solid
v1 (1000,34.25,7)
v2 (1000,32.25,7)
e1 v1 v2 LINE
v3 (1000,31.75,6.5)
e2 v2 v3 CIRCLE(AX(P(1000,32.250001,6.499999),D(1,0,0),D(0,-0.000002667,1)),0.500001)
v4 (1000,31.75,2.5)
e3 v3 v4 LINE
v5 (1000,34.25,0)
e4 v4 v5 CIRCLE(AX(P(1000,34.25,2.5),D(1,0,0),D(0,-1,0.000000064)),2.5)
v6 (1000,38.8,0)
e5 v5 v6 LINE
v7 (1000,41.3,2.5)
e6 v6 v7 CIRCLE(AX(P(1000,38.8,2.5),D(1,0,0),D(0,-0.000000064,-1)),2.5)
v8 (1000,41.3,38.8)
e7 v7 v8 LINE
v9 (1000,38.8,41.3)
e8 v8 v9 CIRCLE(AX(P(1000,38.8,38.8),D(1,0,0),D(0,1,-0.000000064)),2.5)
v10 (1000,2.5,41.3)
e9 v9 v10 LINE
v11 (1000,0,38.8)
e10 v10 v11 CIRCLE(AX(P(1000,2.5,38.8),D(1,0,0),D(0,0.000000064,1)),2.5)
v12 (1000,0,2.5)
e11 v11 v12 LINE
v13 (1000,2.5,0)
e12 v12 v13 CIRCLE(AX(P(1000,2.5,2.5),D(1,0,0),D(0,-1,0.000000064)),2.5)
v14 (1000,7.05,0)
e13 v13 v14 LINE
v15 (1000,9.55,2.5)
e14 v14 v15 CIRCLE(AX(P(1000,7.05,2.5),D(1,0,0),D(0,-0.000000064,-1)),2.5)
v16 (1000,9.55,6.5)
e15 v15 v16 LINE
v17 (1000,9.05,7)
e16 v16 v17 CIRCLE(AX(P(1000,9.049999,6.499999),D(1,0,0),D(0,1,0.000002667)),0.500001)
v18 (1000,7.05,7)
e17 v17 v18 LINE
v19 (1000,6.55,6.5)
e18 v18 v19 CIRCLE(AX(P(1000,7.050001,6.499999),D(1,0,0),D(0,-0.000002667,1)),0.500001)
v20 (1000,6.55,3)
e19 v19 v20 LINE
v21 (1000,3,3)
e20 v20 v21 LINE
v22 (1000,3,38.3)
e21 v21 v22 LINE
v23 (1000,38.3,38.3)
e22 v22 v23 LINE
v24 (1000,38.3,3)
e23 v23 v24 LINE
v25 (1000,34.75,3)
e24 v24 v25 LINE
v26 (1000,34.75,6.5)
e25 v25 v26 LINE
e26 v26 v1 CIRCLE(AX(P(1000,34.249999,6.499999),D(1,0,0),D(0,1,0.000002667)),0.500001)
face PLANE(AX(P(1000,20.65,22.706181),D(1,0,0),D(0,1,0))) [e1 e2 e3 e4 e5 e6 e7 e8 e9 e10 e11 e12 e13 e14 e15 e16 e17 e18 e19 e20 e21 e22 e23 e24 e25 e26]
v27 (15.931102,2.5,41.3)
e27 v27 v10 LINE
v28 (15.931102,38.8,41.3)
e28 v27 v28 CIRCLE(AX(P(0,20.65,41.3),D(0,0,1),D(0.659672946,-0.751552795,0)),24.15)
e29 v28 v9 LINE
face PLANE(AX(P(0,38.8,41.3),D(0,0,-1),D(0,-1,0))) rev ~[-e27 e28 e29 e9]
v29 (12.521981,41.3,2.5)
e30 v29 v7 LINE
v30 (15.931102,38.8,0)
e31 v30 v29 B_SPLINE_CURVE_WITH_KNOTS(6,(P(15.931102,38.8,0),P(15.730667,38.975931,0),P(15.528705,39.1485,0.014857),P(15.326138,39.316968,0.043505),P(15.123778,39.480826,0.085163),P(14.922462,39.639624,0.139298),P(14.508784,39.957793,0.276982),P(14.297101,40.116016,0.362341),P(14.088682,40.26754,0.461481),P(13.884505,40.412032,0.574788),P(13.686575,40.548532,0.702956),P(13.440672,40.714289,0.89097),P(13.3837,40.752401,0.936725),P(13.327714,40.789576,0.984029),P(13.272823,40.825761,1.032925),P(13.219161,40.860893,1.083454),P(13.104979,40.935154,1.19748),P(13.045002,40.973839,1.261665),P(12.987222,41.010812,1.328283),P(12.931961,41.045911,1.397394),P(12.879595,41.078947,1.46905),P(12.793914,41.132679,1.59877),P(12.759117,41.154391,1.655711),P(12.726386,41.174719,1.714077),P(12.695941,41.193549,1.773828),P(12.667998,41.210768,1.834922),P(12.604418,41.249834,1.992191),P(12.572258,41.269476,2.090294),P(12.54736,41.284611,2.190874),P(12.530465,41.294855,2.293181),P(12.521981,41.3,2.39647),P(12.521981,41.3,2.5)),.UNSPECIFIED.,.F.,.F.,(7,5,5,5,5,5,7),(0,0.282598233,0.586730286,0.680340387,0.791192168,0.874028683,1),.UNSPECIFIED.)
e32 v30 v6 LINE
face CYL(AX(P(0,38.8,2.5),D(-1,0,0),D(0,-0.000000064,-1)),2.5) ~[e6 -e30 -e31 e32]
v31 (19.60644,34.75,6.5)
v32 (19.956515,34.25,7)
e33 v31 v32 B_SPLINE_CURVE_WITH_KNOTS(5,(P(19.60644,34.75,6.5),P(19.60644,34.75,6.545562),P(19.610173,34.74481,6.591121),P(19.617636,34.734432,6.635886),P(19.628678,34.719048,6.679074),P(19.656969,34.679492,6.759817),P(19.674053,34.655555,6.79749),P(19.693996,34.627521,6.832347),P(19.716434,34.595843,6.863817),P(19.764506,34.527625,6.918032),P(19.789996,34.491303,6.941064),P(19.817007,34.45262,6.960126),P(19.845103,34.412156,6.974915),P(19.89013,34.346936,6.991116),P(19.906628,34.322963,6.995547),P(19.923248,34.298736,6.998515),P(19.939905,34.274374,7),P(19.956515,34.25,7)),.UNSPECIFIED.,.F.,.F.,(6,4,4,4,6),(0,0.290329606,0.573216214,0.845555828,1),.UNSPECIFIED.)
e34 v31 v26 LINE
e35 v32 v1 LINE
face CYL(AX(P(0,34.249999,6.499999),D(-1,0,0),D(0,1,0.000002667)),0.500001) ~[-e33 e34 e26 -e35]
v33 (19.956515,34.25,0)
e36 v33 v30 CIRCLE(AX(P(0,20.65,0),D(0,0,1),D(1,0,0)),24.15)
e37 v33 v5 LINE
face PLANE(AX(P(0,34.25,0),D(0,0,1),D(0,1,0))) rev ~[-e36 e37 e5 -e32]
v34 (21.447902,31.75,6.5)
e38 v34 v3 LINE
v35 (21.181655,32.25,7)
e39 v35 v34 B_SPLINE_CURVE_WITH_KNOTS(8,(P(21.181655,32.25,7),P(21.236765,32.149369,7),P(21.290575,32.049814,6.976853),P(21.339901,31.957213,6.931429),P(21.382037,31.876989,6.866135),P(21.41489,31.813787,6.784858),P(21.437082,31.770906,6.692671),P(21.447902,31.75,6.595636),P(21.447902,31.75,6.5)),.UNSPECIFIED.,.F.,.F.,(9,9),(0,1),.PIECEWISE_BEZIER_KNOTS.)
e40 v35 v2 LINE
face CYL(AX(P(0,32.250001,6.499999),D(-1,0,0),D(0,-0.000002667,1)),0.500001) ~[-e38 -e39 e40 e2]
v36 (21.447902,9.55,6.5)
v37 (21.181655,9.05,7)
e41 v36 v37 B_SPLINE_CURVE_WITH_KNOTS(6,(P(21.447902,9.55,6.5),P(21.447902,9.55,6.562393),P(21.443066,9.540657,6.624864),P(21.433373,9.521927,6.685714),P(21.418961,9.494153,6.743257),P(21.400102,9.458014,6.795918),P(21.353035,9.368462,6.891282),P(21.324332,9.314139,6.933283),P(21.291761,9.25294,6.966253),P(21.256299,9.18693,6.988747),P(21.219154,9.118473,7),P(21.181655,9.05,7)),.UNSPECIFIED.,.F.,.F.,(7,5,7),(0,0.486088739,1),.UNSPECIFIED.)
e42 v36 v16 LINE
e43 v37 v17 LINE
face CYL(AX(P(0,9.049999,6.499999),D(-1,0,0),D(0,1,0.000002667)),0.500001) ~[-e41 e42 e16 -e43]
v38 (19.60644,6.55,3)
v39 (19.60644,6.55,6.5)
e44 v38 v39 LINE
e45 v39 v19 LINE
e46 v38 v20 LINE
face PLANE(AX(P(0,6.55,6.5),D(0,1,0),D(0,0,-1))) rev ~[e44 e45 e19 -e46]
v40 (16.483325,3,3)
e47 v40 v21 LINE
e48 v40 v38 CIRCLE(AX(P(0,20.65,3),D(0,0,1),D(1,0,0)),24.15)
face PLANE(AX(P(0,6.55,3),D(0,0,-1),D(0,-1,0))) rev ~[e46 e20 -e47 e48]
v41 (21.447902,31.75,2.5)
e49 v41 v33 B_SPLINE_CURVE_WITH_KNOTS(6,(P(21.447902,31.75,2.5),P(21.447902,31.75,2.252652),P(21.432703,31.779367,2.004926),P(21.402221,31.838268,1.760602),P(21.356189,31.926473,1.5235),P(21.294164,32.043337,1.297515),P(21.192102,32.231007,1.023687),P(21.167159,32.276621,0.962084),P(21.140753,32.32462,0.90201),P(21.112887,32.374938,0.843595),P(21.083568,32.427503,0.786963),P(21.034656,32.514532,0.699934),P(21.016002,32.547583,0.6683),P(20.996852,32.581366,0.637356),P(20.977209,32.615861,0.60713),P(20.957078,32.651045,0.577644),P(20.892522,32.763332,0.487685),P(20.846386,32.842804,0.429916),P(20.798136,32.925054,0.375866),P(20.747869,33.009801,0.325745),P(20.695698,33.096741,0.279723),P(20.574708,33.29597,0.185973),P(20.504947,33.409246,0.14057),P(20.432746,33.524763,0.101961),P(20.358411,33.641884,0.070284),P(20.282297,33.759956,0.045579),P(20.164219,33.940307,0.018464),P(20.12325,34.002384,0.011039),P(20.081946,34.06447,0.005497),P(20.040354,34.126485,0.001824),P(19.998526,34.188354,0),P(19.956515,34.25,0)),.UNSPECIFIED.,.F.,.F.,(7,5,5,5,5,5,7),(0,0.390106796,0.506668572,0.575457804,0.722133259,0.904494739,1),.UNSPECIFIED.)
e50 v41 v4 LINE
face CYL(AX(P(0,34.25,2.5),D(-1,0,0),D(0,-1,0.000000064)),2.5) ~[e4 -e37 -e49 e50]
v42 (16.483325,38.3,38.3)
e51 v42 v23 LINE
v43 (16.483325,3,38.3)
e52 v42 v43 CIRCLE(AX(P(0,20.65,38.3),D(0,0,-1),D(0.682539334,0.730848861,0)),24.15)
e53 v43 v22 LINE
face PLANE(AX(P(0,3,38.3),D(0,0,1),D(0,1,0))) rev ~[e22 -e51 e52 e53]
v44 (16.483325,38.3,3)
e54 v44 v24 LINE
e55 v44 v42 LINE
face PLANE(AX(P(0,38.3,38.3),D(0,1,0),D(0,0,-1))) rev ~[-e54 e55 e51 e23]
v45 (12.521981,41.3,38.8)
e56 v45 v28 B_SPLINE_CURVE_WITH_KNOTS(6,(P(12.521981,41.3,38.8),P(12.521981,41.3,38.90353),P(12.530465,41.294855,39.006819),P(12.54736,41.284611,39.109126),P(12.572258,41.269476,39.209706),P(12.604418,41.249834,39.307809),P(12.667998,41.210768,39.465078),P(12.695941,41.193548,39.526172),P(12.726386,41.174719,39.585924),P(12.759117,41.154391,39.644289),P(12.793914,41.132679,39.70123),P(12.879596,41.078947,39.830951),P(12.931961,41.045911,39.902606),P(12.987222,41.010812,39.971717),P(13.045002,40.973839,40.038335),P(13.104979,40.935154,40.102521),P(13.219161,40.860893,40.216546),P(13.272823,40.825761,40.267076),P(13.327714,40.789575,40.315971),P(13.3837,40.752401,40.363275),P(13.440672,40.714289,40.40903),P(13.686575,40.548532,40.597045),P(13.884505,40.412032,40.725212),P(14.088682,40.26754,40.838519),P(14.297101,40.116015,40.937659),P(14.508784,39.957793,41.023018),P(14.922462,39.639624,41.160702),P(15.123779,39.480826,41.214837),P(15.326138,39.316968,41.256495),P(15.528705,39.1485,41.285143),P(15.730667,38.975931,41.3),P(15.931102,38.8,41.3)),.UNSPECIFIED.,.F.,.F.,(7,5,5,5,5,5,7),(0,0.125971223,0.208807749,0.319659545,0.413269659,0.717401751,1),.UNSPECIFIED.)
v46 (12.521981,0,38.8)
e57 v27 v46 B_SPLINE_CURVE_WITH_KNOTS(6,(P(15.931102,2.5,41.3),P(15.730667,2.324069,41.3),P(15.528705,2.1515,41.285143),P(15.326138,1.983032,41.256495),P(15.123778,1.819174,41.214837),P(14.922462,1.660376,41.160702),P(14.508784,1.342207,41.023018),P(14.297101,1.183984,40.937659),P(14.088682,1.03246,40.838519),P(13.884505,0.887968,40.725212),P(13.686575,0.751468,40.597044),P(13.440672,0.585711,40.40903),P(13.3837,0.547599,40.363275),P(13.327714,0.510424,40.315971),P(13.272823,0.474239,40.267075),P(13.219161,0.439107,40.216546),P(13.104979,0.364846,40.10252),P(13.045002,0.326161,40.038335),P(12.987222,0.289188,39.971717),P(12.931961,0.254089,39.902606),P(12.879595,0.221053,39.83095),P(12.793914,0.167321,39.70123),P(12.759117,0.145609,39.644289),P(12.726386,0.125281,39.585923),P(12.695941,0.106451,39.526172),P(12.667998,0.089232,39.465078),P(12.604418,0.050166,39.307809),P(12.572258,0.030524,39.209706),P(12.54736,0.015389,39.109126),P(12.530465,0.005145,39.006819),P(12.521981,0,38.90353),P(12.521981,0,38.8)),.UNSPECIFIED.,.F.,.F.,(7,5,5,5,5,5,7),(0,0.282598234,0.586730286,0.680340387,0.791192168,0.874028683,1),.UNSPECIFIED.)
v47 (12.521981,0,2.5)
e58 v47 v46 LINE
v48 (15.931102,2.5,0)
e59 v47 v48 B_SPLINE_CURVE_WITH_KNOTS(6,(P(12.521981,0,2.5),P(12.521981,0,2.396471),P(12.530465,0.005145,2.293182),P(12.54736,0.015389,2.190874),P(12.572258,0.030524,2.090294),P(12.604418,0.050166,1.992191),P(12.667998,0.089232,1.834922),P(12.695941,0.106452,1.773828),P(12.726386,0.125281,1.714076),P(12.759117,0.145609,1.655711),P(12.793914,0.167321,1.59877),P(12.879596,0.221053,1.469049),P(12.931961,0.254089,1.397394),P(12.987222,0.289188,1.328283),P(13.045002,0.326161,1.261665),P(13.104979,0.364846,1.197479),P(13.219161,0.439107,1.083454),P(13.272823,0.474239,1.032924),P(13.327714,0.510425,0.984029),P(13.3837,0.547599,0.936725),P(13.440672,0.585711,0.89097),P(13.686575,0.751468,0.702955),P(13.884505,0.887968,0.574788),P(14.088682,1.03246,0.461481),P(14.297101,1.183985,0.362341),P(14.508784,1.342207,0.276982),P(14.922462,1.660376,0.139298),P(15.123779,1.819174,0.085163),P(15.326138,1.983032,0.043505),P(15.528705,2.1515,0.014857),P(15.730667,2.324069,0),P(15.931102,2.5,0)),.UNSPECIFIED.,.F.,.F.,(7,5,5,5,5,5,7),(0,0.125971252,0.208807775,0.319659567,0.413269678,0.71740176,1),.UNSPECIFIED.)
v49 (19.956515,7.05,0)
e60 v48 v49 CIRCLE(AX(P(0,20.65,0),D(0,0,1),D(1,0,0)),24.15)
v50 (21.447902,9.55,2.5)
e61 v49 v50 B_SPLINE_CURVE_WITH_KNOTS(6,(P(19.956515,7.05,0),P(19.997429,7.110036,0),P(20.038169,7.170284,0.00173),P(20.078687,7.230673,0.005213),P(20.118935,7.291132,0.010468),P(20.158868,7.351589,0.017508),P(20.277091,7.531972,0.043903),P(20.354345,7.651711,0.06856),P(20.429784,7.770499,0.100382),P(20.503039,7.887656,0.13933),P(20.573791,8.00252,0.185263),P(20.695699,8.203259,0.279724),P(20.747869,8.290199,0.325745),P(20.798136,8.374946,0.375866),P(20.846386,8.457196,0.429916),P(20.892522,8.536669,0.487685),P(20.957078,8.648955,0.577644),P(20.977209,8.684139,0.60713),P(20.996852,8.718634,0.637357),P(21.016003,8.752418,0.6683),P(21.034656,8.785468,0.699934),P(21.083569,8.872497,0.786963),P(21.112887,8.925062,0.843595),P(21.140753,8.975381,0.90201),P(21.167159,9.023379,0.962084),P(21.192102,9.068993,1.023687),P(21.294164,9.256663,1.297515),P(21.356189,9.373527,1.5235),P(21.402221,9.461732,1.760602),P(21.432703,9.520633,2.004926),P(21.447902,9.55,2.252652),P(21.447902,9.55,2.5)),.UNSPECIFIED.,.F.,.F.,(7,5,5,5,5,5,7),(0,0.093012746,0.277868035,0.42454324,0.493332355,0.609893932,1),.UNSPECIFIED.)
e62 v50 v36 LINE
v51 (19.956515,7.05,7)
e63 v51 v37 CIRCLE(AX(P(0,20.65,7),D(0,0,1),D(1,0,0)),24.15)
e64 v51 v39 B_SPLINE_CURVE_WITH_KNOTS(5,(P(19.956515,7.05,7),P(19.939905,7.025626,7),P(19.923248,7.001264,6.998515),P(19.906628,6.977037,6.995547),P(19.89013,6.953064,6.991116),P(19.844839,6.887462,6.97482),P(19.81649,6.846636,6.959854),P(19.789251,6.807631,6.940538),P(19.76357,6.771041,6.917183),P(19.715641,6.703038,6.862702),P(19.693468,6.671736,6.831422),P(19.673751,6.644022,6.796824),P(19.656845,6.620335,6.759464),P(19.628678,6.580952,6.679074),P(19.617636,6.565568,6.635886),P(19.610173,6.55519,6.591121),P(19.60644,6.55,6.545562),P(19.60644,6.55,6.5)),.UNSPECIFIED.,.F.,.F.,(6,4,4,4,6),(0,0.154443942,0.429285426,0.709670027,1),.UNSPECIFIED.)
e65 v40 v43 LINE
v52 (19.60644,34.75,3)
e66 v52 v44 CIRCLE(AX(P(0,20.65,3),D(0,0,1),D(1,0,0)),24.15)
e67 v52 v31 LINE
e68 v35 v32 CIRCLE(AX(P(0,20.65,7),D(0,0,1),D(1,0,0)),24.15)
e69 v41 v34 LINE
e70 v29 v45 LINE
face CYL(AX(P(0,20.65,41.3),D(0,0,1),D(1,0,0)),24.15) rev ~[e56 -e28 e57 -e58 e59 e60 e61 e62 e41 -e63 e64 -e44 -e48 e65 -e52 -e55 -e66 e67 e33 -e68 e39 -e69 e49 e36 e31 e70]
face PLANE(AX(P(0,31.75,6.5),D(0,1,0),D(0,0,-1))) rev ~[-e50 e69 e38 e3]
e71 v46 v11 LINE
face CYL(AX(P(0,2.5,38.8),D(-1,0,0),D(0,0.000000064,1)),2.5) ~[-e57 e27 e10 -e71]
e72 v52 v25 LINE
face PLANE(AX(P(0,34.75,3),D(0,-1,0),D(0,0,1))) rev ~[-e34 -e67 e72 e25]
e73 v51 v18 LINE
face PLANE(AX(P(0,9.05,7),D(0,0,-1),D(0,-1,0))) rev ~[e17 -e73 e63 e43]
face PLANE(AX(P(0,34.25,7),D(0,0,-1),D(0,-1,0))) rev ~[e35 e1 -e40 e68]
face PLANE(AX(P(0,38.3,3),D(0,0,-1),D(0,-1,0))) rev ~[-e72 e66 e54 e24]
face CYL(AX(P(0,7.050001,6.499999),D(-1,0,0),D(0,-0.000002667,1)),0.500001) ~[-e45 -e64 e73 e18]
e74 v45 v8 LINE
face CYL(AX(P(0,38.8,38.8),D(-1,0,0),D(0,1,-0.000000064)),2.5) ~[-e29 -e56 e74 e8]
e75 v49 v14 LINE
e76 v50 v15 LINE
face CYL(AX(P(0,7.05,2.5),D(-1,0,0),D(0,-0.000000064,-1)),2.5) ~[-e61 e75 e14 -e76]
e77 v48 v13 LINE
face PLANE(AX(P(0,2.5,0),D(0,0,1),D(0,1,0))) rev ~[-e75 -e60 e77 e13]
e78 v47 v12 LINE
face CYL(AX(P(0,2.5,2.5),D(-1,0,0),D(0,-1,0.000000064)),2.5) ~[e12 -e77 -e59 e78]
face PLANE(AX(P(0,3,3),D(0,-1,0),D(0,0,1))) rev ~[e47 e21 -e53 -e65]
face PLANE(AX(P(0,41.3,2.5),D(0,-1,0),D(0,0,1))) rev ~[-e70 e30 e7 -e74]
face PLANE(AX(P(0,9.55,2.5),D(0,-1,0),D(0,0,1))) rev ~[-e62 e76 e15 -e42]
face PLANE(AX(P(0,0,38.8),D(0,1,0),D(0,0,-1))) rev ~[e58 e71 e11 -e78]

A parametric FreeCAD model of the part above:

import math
import FreeCAD as App
import Part
import Sketcher

V = App.Vector
Q = App.Units.Quantity

doc = App.newDocument("Part")
body = doc.addObject("PartDesign::Body", "Body")

sketch1 = doc.addObject("Sketcher::SketchObject", "Sketch")
body.addObject(sketch1)
sketch1.AttachmentSupport = (doc.YZ_Plane, [""])
sketch1.MapMode = "FlatFace"
sketch1.addGeometry([
    Part.LineSegment(V(0, 38.8, 0), V(0, 2.5, 0)),
    Part.ArcOfCircle(Part.Circle(V(2.5, 2.5, 0), V(0, 0, 1), 2.5), math.radians(180), math.radians(270)),
    Part.LineSegment(V(2.5, 0, 0), V(7, 0, 0)),
    Part.ArcOfCircle(Part.Circle(V(7.1, 2.5, 0), V(0, 0, 1), 2.5), math.radians(-90), math.radians(0)),
    Part.LineSegment(V(9.6, 2.5, 0), V(9.6, 6.5, 0)),
    Part.ArcOfCircle(Part.Circle(V(9, 6.5, 0), V(0, 0, 1), 0.5), math.radians(0), math.radians(90)),
    Part.LineSegment(V(9.1, 7, 0), V(7, 7, 0)),
    Part.ArcOfCircle(Part.Circle(V(7.1, 6.5, 0), V(0, 0, 1), 0.5), math.radians(90), math.radians(180)),
    Part.LineSegment(V(6.5, 6.5, 0), V(6.5, 3, 0)),
    Part.LineSegment(V(6.5, 3, 0), V(3, 3, 0)),
    Part.LineSegment(V(3, 3, 0), V(3, 38.3, 0)),
    Part.LineSegment(V(3, 38.3, 0), V(38.3, 38.3, 0)),
    Part.LineSegment(V(38.3, 38.3, 0), V(38.3, 3, 0)),
    Part.LineSegment(V(38.3, 3, 0), V(34.8, 3, 0)),
    Part.LineSegment(V(34.8, 3, 0), V(34.8, 6.5, 0)),
    Part.ArcOfCircle(Part.Circle(V(34.2, 6.5, 0), V(0, 0, 1), 0.5), math.radians(0), math.radians(90)),
    Part.LineSegment(V(34.2, 7, 0), V(32.2, 7, 0)),
    Part.ArcOfCircle(Part.Circle(V(32.3, 6.5, 0), V(0, 0, 1), 0.5), math.radians(90), math.radians(180)),
    Part.LineSegment(V(31.8, 6.5, 0), V(31.8, 2.5, 0)),
    Part.ArcOfCircle(Part.Circle(V(34.2, 2.5, 0), V(0, 0, 1), 2.5), math.radians(180), math.radians(270)),
    Part.LineSegment(V(34.2, 0, 0), V(38.8, 0, 0)),
    Part.ArcOfCircle(Part.Circle(V(38.8, 2.5, 0), V(0, 0, 1), 2.5), math.radians(-90), math.radians(0)),
    Part.LineSegment(V(41.3, 2.5, 0), V(41.3, 38.8, 0)),
    Part.ArcOfCircle(Part.Circle(V(38.8, 38.8, 0), V(0, 0, 1), 2.5), math.radians(0), math.radians(90)),
    Part.LineSegment(V(38.8, 41.3, 0), V(2.5, 41.3, 0)),
    Part.ArcOfCircle(Part.Circle(V(2.5, 38.8, 0), V(0, 0, 1), 2.5), math.radians(90), math.radians(180)),
], False)
sketch1.addConstraint([
    Sketcher.Constraint("Tangent", 0, 2, 1, 1),
    Sketcher.Constraint("Tangent", 1, 2, 2, 1),
    Sketcher.Constraint("Tangent", 2, 2, 3, 1),
    Sketcher.Constraint("Tangent", 3, 2, 4, 1),
    Sketcher.Constraint("Coincident", 4, 2, 5, 1),
    Sketcher.Constraint("Coincident", 5, 2, 6, 1),
    Sketcher.Constraint("Coincident", 6, 2, 7, 1),
    Sketcher.Constraint("Coincident", 7, 2, 8, 1),
    Sketcher.Constraint("Coincident", 8, 2, 9, 1),
    Sketcher.Constraint("Coincident", 9, 2, 10, 1),
    Sketcher.Constraint("Coincident", 10, 2, 11, 1),
    Sketcher.Constraint("Coincident", 11, 2, 12, 1),
    Sketcher.Constraint("Coincident", 12, 2, 13, 1),
    Sketcher.Constraint("Coincident", 13, 2, 14, 1),
    Sketcher.Constraint("Coincident", 14, 2, 15, 1),
    Sketcher.Constraint("Coincident", 15, 2, 16, 1),
    Sketcher.Constraint("Coincident", 16, 2, 17, 1),
    Sketcher.Constraint("Coincident", 17, 2, 18, 1),
    Sketcher.Constraint("Tangent", 18, 2, 19, 1),
    Sketcher.Constraint("Tangent", 19, 2, 20, 1),
    Sketcher.Constraint("Tangent", 20, 2, 21, 1),
    Sketcher.Constraint("Tangent", 21, 2, 22, 1),
    Sketcher.Constraint("Tangent", 22, 2, 23, 1),
    Sketcher.Constraint("Tangent", 23, 2, 24, 1),
    Sketcher.Constraint("Tangent", 24, 2, 25, 1),
    Sketcher.Constraint("Tangent", 25, 2, 0, 1),
    Sketcher.Constraint("Vertical", 0),
    Sketcher.Constraint("Horizontal", 2),
    Sketcher.Constraint("Vertical", 4),
    Sketcher.Constraint("Horizontal", 6),
    Sketcher.Constraint("Vertical", 8),
    Sketcher.Constraint("Horizontal", 9),
    Sketcher.Constraint("Vertical", 10),
    Sketcher.Constraint("Horizontal", 11),
    Sketcher.Constraint("Vertical", 12),
    Sketcher.Constraint("Horizontal", 13),
    Sketcher.Constraint("Vertical", 14),
    Sketcher.Constraint("Horizontal", 16),
    Sketcher.Constraint("Vertical", 18),
    Sketcher.Constraint("Horizontal", 20),
    Sketcher.Constraint("Vertical", 22),
    Sketcher.Constraint("Horizontal", 24),
    Sketcher.Constraint("Equal", 1, 3),
    Sketcher.Constraint("Equal", 5, 7),
    Sketcher.Constraint("Equal", 7, 15),
    Sketcher.Constraint("Equal", 15, 17),
    Sketcher.Constraint("Equal", 3, 19),
    Sketcher.Constraint("Equal", 19, 21),
    Sketcher.Constraint("Equal", 21, 23),
    Sketcher.Constraint("Equal", 23, 25),
    Sketcher.Constraint("PointOnObject", 0, 2, -2),
    Sketcher.Constraint("PointOnObject", 1, 2, -1),
    Sketcher.Constraint("PointOnObject", 19, 2, -1),
    Sketcher.Constraint("Horizontal", 7, 3, 15, 3),
    Sketcher.Constraint("Horizontal", 17, 3, 4, 2),
    Sketcher.Constraint("Horizontal", 4, 2, 7, 2),
    Sketcher.Constraint("Horizontal", 9, 2, 12, 2),
    Sketcher.Constraint("Horizontal", 7, 2, 14, 2),
    Sketcher.Constraint("Horizontal", 14, 2, 17, 2),
    Sketcher.Constraint("Vertical", 3, 3, 7, 3),
    Sketcher.Constraint("Vertical", 15, 3, 19, 3),
    Sketcher.Constraint("Vertical", 2, 2, 6, 2),
    Sketcher.Constraint("Vertical", 19, 3, 15, 2),
    Sketcher.Constraint("Vertical", 17, 3, 16, 2),
    Sketcher.Constraint("Equal", 9, 13),
    Sketcher.Constraint("Equal", 6, 16),
    Sketcher.Constraint("Equal", 2, 20),
    Sketcher.Constraint("Equal", 24, 0),
    Sketcher.Constraint("Equal", 11, 10),
    Sketcher.Constraint("Radius", 1, Q("2.5 mm")),
    Sketcher.Constraint("Radius", 5, Q("0.500001 mm")),
    Sketcher.Constraint("DistanceY", 4, 1, 4, 2, Q("4 mm")),
    Sketcher.Constraint("DistanceX", 11, 1, 11, 2, Q("35.3 mm")),
    Sketcher.Constraint("DistanceX", 24, 2, 24, 1, Q("36.3 mm")),
    Sketcher.Constraint("DistanceY", 8, 2, 8, 1, Q("3.5 mm")),
    Sketcher.Constraint("DistanceX", 2, 1, 2, 2, Q("4.55 mm")),
])
pad1 = doc.addObject("PartDesign::Pad", "Pad")
body.addObject(pad1)
pad1.Profile = sketch1
pad1.Length = 1000

sketch2 = doc.addObject("Sketcher::SketchObject", "Sketch001")
body.addObject(sketch2)
sketch2.AttachmentSupport = (doc.XY_Plane, [""])
sketch2.MapMode = "FlatFace"
sketch2.AttachmentOffset = App.Placement(V(0, 0, 41.3), App.Rotation())
sketch2.addGeometry(Part.Circle(V(0, 21, 0), V(0, 0, 1), 24), False)
sketch2.addConstraint([
    Sketcher.Constraint("PointOnObject", 0, 3, -2),
    Sketcher.Constraint("Diameter", 0, Q("48.3 mm")),
    Sketcher.Constraint("DistanceY", -1, 1, 0, 3, Q("20.65 mm")),
])
pocket1 = doc.addObject("PartDesign::Pocket", "Pocket")
body.addObject(pocket1)
pocket1.Profile = sketch2
pocket1.Type = "ThroughAll"

doc.recompute()
